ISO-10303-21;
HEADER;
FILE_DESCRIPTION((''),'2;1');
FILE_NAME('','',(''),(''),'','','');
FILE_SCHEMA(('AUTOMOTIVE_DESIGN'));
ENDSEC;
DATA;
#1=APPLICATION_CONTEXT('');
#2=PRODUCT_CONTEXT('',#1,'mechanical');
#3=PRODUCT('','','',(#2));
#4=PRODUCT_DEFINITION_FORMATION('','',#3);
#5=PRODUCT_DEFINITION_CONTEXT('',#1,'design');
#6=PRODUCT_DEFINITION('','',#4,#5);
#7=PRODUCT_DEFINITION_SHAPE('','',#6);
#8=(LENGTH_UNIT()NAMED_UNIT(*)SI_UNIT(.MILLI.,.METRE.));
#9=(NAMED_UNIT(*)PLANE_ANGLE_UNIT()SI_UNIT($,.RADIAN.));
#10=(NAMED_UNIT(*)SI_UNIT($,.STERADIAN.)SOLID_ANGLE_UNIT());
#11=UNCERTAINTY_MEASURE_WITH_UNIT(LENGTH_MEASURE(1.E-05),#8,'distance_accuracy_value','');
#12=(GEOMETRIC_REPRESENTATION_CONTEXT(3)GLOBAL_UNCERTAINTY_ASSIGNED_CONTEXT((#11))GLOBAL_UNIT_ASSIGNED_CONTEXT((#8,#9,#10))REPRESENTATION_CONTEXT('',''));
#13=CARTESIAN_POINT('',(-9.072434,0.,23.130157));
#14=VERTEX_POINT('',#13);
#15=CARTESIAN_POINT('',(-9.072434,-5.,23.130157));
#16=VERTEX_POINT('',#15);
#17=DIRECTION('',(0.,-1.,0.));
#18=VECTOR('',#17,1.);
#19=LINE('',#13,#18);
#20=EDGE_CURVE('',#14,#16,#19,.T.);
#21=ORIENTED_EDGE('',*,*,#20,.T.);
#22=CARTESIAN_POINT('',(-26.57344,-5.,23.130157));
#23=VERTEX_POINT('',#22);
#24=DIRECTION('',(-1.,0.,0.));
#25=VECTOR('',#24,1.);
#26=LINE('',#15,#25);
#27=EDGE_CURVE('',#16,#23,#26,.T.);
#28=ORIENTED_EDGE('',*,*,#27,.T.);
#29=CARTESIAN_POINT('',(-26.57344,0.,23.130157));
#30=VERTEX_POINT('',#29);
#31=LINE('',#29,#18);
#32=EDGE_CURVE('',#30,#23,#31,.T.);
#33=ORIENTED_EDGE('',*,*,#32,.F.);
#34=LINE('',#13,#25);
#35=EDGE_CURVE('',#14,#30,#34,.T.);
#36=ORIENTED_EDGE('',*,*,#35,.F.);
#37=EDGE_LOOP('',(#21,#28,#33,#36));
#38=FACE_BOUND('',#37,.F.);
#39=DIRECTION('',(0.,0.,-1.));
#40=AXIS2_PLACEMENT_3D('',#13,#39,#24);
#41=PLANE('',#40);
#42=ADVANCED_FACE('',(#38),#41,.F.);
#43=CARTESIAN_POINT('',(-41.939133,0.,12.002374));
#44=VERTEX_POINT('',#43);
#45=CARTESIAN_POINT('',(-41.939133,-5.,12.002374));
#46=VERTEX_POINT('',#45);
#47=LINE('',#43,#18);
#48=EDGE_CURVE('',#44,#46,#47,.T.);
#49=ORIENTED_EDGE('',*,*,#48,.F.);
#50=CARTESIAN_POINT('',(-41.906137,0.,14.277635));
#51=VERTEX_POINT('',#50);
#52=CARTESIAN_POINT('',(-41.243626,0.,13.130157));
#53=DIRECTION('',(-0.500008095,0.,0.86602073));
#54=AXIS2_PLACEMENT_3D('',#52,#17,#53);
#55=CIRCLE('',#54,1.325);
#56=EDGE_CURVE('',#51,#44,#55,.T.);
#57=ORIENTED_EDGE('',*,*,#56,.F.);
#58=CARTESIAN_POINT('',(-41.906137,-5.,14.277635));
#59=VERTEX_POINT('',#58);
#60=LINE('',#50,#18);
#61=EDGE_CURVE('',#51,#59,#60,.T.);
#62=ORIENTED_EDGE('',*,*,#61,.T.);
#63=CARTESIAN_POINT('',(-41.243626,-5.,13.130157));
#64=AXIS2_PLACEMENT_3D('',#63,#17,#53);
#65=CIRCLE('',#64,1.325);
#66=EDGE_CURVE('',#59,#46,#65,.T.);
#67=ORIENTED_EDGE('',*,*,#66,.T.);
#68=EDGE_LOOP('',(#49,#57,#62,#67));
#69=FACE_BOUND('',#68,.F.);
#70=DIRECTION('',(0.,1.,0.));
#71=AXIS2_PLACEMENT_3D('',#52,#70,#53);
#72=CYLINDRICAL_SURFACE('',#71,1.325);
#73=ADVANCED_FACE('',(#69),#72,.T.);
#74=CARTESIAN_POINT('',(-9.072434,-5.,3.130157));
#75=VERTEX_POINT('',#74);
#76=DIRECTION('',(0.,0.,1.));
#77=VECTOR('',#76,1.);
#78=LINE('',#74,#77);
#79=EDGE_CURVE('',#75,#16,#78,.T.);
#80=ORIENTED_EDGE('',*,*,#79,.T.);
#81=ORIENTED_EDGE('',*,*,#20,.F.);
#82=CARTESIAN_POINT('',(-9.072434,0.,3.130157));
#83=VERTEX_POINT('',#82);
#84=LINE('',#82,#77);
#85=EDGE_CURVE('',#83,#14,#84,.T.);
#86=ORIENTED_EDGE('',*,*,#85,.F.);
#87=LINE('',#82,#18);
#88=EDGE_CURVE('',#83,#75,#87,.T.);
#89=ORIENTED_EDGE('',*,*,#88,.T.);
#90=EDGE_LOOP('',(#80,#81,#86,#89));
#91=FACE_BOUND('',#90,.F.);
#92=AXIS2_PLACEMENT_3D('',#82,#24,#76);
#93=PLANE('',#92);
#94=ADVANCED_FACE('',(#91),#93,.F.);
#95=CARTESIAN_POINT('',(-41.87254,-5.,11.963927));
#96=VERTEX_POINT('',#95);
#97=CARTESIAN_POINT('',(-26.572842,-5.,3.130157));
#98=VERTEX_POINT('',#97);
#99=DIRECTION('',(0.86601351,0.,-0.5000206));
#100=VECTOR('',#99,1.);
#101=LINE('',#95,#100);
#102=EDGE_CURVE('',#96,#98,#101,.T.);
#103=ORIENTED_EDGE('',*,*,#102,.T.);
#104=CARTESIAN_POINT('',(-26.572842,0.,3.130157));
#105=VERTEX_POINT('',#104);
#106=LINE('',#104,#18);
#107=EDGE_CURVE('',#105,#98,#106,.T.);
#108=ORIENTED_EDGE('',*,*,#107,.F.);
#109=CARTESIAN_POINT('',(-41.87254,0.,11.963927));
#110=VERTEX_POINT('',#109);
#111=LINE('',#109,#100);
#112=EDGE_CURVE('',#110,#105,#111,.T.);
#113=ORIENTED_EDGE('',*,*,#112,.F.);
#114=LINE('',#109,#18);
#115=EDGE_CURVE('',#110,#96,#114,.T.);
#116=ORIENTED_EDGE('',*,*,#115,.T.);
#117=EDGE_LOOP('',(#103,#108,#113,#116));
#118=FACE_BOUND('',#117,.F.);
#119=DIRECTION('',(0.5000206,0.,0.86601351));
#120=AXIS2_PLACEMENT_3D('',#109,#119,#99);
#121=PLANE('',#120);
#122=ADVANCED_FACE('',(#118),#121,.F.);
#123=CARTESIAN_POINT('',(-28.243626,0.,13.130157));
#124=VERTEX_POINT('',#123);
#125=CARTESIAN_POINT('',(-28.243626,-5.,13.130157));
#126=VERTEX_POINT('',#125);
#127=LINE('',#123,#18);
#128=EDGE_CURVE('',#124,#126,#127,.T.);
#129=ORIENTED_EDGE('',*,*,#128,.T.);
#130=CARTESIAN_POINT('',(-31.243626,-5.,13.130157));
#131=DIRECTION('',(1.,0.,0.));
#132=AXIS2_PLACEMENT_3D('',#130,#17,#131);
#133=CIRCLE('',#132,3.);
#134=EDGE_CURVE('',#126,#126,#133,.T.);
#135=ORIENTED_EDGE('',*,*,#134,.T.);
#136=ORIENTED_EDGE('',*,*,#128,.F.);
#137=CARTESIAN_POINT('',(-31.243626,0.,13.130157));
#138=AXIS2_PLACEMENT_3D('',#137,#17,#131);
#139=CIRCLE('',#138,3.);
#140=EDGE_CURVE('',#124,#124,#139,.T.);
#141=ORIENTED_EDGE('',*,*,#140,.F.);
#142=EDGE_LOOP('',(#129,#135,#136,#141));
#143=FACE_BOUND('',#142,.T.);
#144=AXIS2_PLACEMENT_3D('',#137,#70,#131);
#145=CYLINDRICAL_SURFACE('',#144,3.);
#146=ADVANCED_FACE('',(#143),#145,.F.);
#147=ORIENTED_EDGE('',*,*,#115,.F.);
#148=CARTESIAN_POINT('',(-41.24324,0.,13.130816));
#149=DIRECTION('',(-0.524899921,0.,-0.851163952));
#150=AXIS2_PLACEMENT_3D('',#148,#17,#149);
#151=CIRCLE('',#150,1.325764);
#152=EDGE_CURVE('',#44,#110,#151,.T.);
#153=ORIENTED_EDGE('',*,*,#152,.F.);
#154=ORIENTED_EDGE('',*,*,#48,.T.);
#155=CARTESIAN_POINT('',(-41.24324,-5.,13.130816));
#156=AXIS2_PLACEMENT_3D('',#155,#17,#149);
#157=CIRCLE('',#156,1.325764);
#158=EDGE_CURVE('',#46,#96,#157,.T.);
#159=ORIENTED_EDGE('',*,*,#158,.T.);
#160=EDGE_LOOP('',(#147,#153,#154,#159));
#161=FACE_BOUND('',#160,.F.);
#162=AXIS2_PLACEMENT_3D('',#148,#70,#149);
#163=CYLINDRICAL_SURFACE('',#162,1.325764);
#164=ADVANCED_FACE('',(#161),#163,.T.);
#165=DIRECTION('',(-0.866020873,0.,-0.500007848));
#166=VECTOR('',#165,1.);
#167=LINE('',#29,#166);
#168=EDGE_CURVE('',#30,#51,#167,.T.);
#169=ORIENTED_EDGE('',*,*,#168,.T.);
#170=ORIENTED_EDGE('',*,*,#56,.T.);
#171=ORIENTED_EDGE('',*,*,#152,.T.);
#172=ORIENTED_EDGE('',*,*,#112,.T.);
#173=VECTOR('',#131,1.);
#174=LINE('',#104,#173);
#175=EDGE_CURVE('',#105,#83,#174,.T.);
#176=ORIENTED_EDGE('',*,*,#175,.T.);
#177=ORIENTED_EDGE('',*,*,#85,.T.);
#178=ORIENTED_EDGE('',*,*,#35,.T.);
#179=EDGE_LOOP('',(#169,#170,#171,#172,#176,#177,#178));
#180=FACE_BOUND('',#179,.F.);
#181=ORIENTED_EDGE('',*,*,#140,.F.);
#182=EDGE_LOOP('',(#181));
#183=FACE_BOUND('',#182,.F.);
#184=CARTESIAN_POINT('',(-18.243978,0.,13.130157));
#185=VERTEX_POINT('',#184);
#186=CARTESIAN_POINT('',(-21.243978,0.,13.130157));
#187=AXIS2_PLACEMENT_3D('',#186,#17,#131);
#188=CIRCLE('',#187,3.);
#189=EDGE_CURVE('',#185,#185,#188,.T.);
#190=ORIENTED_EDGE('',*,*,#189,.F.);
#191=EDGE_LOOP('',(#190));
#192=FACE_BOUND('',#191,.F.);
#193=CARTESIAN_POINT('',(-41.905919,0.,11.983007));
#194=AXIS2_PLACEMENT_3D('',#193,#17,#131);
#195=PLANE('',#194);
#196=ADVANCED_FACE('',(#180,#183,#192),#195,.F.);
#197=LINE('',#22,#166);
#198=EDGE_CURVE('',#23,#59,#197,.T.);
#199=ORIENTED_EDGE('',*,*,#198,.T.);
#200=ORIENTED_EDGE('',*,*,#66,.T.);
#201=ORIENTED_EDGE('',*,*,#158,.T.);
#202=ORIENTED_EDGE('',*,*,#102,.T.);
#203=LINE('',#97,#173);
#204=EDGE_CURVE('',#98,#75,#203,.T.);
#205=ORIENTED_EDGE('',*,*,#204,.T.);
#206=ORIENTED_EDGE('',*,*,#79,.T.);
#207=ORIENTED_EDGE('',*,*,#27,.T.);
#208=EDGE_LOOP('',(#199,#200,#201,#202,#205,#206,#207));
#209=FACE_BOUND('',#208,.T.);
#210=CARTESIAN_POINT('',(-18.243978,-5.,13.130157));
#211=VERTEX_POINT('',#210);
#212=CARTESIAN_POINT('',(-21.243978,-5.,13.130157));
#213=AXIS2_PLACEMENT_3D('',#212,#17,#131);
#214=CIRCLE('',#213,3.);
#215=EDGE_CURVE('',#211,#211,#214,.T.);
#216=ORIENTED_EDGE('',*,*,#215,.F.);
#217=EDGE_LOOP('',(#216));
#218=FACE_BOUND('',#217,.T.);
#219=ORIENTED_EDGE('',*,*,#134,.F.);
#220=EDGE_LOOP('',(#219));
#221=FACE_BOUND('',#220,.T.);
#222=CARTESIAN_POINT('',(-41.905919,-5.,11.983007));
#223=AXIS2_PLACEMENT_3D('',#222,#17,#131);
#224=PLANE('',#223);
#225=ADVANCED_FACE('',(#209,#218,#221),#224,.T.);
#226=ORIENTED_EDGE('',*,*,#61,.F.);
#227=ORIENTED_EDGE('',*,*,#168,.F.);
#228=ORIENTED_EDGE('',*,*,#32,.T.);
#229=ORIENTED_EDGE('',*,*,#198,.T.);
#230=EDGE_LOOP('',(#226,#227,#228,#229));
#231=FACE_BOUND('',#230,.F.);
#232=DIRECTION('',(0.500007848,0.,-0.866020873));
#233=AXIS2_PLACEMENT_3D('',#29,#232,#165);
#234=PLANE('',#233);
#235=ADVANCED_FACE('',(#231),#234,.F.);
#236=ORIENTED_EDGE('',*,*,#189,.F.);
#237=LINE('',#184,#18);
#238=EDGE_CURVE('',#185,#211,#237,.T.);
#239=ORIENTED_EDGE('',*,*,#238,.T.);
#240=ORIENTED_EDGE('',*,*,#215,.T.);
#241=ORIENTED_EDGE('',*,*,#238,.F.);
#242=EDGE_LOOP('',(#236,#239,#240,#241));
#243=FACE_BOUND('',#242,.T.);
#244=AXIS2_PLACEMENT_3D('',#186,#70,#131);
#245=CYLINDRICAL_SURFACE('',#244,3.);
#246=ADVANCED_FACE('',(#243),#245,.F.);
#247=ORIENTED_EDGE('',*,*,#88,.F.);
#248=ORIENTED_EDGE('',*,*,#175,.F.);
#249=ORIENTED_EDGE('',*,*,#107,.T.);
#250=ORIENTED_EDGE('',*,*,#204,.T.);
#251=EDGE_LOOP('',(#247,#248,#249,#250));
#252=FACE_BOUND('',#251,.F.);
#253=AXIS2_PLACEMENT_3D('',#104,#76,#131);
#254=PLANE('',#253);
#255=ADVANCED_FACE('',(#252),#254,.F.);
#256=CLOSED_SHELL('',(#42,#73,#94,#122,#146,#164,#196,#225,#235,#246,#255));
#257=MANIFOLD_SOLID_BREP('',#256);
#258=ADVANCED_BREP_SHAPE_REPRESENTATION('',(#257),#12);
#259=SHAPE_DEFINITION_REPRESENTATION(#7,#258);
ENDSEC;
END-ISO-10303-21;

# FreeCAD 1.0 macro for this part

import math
import FreeCAD as App
import Part
import Sketcher

doc = App.newDocument("Part")
body = doc.addObject("PartDesign::Body", "Body")

# Sketch on XZ plane
sketch1 = body.newObject("Sketcher::SketchObject", "Sketch")
sketch1.AttachmentSupport = (doc.getObject("XZ_Plane"), [""])
sketch1.MapMode = "FlatFace"
sketch1.addGeometry([
    Part.ArcOfCircle(Part.Circle(App.Vector(-41.24, 13.13, 0), App.Vector(0, 0, 1), 1.33), math.radians(-121.66), math.radians(-118.34)),  # 0
    Part.LineSegment(App.Vector(-41.87, 11.96, 0), App.Vector(-26.57, 3.13, 0)),  # 1
    Part.LineSegment(App.Vector(-26.57, 3.13, 0), App.Vector(-9.07, 3.13, 0)),  # 2
    Part.LineSegment(App.Vector(-9.07, 3.13, 0), App.Vector(-9.07, 23.13, 0)),  # 3
    Part.LineSegment(App.Vector(-9.07, 23.13, 0), App.Vector(-26.57, 23.13, 0)),  # 4
    Part.LineSegment(App.Vector(-26.57, 23.13, 0), App.Vector(-41.91, 14.28, 0)),  # 5
    Part.ArcOfCircle(Part.Circle(App.Vector(-41.24, 13.13, 0), App.Vector(0, 0, 1), 1.33), math.radians(120), math.radians(238)),  # 6
    Part.Circle(App.Vector(-31.24, 13.13, 0), App.Vector(0, 0, 1), 3),  # 7
    Part.Circle(App.Vector(-21.24, 13.13, 0), App.Vector(0, 0, 1), 3),  # 8
], False)
sketch1.addConstraint([
    Sketcher.Constraint("Coincident", 0, 2, 1, 1),
    Sketcher.Constraint("Coincident", 1, 2, 2, 1),
    Sketcher.Constraint("Coincident", 2, 2, 3, 1),
    Sketcher.Constraint("Coincident", 3, 2, 4, 1),
    Sketcher.Constraint("Coincident", 4, 2, 5, 1),
    Sketcher.Constraint("Tangent", 5, 2, 6, 1),
    Sketcher.Constraint("Coincident", 6, 2, 0, 1),
    Sketcher.Constraint("Horizontal", 2),
    Sketcher.Constraint("Vertical", 3),
    Sketcher.Constraint("Horizontal", 4),
    Sketcher.Constraint("Equal", 7, 8),
    Sketcher.Constraint("Horizontal", 6, 3, 7, 3),
    Sketcher.Constraint("Horizontal", 7, 3, 8, 3),
    Sketcher.Constraint("Diameter", 7, 6.0),
    Sketcher.Constraint("DistanceY", 3, 1, 3, 2, 20.0),
    Sketcher.Constraint("Radius", 6, 1.325),
    Sketcher.Constraint("DistanceX", 6, 3, 7, 3, 10.0),
    Sketcher.Constraint("DistanceY", 1, 2, 7, 3, 10.0),
    Sketcher.Constraint("Radius", 0, 1.325764),
    Sketcher.Constraint("DistanceX", 2, 1, 2, 2, 17.500408),
    Sketcher.Constraint("DistanceX", 0, 2, 0, 3, 0.6293),
    Sketcher.Constraint("DistanceX", 0, 2, 1, 2, 15.299698),
    Sketcher.Constraint("DistanceX", 0, 3, 4, 2, 14.6698),
    Sketcher.Constraint("DistanceX", 0, 3, -1, 1, 41.24324),
    Sketcher.Constraint("DistanceY", 6, 3, 0, 3, 0.000659),
    Sketcher.Constraint("DistanceX", 0, 3, 8, 3, 19.999262),
    Sketcher.Constraint("DistanceY", 6, 2, 5, 2, 2.275261),
    Sketcher.Constraint("DistanceY", -1, 1, 0, 3, 13.130816),
])
pad1 = body.newObject("PartDesign::Pad", "Pad")
pad1.Profile = sketch1
pad1.Length = 5

doc.recompute()
